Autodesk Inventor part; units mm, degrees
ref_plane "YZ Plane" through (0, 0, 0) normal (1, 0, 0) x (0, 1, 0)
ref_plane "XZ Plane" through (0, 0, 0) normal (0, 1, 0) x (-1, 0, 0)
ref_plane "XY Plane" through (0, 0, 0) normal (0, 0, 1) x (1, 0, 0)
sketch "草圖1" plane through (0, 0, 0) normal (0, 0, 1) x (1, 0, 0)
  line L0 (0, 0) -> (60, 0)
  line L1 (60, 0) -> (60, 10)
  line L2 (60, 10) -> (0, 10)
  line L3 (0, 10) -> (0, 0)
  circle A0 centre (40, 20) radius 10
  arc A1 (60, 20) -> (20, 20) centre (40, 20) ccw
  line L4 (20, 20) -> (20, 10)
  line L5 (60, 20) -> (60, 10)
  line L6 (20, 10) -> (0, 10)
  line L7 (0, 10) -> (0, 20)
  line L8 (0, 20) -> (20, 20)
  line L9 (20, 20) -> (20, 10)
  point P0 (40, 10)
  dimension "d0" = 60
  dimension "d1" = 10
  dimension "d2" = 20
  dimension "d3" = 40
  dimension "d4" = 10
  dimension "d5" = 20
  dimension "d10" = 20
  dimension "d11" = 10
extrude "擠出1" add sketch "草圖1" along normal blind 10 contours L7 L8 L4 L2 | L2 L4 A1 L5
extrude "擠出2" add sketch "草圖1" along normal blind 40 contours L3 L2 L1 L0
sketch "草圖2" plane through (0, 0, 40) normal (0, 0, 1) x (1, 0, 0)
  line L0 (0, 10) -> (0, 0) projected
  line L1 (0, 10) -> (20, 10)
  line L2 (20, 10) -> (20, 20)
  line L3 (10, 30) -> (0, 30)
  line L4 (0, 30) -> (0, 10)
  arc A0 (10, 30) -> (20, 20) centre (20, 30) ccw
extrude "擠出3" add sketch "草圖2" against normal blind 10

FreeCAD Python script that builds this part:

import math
import FreeCAD as App
import Part
import Sketcher
Q = App.Units.Quantity


def add_polygon(sketch, points):
    """Adds a closed chain of lines whose ends are joined by coincident constraints."""
    first, n = sketch.GeometryCount, len(points)
    for a, b in zip(points, points[1:] + points[:1]):
        sketch.addGeometry(Part.LineSegment(App.Vector(*a, 0), App.Vector(*b, 0)), False)
    for i in range(n):
        sketch.addConstraint(Sketcher.Constraint("Coincident", first + i, 2, first + (i + 1) % n, 1))

doc = App.newDocument("Part")
body = doc.addObject("PartDesign::Body", "Body")

# Sketch on XY plane
sketch1 = body.newObject("Sketcher::SketchObject", "Sketch")
sketch1.AttachmentSupport = (doc.getObject("XY_Plane"), [""])
sketch1.MapMode = "FlatFace"
sketch1.addGeometry([
    Part.LineSegment(App.Vector(40, 10, 0), App.Vector(60, 10, 0)),  # 0
    Part.LineSegment(App.Vector(60, 10, 0), App.Vector(60, 20, 0)),  # 1
    Part.ArcOfCircle(Part.Circle(App.Vector(40, 20, 0), App.Vector(0, 0, 1), 20), math.radians(0), math.radians(180)),  # 2
    Part.LineSegment(App.Vector(20, 20, 0), App.Vector(0, 20, 0)),  # 3
    Part.LineSegment(App.Vector(0, 20, 0), App.Vector(0, 10, 0)),  # 4
    Part.LineSegment(App.Vector(0, 10, 0), App.Vector(40, 10, 0)),  # 5
    Part.Circle(App.Vector(40, 20, 0), App.Vector(0, 0, 1), 10),  # 6
], False)
sketch1.addConstraint([
    Sketcher.Constraint("Coincident", 0, 2, 1, 1),
    Sketcher.Constraint("Tangent", 1, 2, 2, 1),
    Sketcher.Constraint("Coincident", 2, 2, 3, 1),
    Sketcher.Constraint("Coincident", 3, 2, 4, 1),
    Sketcher.Constraint("Coincident", 4, 2, 5, 1),
    Sketcher.Constraint("Coincident", 5, 2, 0, 1),
    Sketcher.Constraint("Horizontal", 0),
    Sketcher.Constraint("Vertical", 1),
    Sketcher.Constraint("Horizontal", 3),
    Sketcher.Constraint("Vertical", 4),
    Sketcher.Constraint("Horizontal", 5),
    Sketcher.Constraint("Coincident", 6, 3, 2, 3),
    Sketcher.Constraint("PointOnObject", 3, 2, -2),
    Sketcher.Constraint("Horizontal", 1, 2, 2, 2),
    Sketcher.Constraint("Vertical", 6, 3, 5, 2),
    Sketcher.Constraint("Equal", 0, 3),
    Sketcher.Constraint("Diameter", 6, Q("20 mm")),
    Sketcher.Constraint("Radius", 2, Q("20 mm")),
    Sketcher.Constraint("DistanceY", 1, 1, 1, 2, Q("10 mm")),
    Sketcher.Constraint("DistanceY", -1, 1, 2, 3, Q("20 mm")),
])
pad1 = body.newObject("PartDesign::Pad", "Pad")
pad1.Profile = sketch1
pad1.Length = 10

# Sketch on XY plane
sketch2 = body.newObject("Sketcher::SketchObject", "Sketch001")
sketch2.AttachmentSupport = (doc.getObject("XY_Plane"), [""])
sketch2.MapMode = "FlatFace"
add_polygon(sketch2, [(0, 10), (0, 0), (60, 0), (60, 10)])  # lines 0-3
sketch2.addConstraint([
    Sketcher.Constraint("Vertical", 0),
    Sketcher.Constraint("Horizontal", 1),
    Sketcher.Constraint("Vertical", 2),
    Sketcher.Constraint("Horizontal", 3),
    Sketcher.Constraint("Coincident", 0, 2, -1, 1),
    Sketcher.Constraint("DistanceX", 1, 1, 1, 2, Q("60 mm")),
    Sketcher.Constraint("DistanceY", 0, 2, 0, 1, Q("10 mm")),
])
pad2 = body.newObject("PartDesign::Pad", "Pad001")
pad2.Profile = sketch2
pad2.Length = 40

# Sketch on XY plane
sketch3 = body.newObject("Sketcher::SketchObject", "Sketch002")
sketch3.AttachmentSupport = (doc.getObject("XY_Plane"), [""])
sketch3.MapMode = "FlatFace"
sketch3.AttachmentOffset = App.Placement(App.Vector(0, 0, 40), App.Rotation())
sketch3.addGeometry([
    Part.LineSegment(App.Vector(0, 30, 0), App.Vector(0, 10, 0)),  # 0
    Part.LineSegment(App.Vector(0, 10, 0), App.Vector(20, 10, 0)),  # 1
    Part.LineSegment(App.Vector(20, 10, 0), App.Vector(20, 20, 0)),  # 2
    Part.ArcOfCircle(Part.Circle(App.Vector(20, 30, 0), App.Vector(0, 0, 1), 10), math.radians(180), math.radians(270)),  # 3
    Part.LineSegment(App.Vector(10, 30, 0), App.Vector(0, 30, 0)),  # 4
], False)
sketch3.addConstraint([
    Sketcher.Constraint("Coincident", 0, 2, 1, 1),
    Sketcher.Constraint("Coincident", 1, 2, 2, 1),
    Sketcher.Constraint("Coincident", 2, 2, 3, 2),
    Sketcher.Constraint("Coincident", 3, 1, 4, 1),
    Sketcher.Constraint("Coincident", 4, 2, 0, 1),
    Sketcher.Constraint("Vertical", 0),
    Sketcher.Constraint("Horizontal", 1),
    Sketcher.Constraint("Vertical", 2),
    Sketcher.Constraint("Horizontal", 4),
    Sketcher.Constraint("PointOnObject", 0, 2, -2),
    Sketcher.Constraint("Vertical", 3, 3, 1, 2),
    Sketcher.Constraint("Equal", 1, 0),
    Sketcher.Constraint("Equal", 4, 2),
    Sketcher.Constraint("Radius", 3, Q("10 mm")),
    Sketcher.Constraint("DistanceX", 1, 1, 1, 2, Q("20 mm")),
    Sketcher.Constraint("DistanceY", -1, 1, 3, 3, Q("30 mm")),
])
pad3 = body.newObject("PartDesign::Pad", "Pad002")
pad3.Profile = sketch3
pad3.Length = 10
pad3.Reversed = True

doc.recompute()
